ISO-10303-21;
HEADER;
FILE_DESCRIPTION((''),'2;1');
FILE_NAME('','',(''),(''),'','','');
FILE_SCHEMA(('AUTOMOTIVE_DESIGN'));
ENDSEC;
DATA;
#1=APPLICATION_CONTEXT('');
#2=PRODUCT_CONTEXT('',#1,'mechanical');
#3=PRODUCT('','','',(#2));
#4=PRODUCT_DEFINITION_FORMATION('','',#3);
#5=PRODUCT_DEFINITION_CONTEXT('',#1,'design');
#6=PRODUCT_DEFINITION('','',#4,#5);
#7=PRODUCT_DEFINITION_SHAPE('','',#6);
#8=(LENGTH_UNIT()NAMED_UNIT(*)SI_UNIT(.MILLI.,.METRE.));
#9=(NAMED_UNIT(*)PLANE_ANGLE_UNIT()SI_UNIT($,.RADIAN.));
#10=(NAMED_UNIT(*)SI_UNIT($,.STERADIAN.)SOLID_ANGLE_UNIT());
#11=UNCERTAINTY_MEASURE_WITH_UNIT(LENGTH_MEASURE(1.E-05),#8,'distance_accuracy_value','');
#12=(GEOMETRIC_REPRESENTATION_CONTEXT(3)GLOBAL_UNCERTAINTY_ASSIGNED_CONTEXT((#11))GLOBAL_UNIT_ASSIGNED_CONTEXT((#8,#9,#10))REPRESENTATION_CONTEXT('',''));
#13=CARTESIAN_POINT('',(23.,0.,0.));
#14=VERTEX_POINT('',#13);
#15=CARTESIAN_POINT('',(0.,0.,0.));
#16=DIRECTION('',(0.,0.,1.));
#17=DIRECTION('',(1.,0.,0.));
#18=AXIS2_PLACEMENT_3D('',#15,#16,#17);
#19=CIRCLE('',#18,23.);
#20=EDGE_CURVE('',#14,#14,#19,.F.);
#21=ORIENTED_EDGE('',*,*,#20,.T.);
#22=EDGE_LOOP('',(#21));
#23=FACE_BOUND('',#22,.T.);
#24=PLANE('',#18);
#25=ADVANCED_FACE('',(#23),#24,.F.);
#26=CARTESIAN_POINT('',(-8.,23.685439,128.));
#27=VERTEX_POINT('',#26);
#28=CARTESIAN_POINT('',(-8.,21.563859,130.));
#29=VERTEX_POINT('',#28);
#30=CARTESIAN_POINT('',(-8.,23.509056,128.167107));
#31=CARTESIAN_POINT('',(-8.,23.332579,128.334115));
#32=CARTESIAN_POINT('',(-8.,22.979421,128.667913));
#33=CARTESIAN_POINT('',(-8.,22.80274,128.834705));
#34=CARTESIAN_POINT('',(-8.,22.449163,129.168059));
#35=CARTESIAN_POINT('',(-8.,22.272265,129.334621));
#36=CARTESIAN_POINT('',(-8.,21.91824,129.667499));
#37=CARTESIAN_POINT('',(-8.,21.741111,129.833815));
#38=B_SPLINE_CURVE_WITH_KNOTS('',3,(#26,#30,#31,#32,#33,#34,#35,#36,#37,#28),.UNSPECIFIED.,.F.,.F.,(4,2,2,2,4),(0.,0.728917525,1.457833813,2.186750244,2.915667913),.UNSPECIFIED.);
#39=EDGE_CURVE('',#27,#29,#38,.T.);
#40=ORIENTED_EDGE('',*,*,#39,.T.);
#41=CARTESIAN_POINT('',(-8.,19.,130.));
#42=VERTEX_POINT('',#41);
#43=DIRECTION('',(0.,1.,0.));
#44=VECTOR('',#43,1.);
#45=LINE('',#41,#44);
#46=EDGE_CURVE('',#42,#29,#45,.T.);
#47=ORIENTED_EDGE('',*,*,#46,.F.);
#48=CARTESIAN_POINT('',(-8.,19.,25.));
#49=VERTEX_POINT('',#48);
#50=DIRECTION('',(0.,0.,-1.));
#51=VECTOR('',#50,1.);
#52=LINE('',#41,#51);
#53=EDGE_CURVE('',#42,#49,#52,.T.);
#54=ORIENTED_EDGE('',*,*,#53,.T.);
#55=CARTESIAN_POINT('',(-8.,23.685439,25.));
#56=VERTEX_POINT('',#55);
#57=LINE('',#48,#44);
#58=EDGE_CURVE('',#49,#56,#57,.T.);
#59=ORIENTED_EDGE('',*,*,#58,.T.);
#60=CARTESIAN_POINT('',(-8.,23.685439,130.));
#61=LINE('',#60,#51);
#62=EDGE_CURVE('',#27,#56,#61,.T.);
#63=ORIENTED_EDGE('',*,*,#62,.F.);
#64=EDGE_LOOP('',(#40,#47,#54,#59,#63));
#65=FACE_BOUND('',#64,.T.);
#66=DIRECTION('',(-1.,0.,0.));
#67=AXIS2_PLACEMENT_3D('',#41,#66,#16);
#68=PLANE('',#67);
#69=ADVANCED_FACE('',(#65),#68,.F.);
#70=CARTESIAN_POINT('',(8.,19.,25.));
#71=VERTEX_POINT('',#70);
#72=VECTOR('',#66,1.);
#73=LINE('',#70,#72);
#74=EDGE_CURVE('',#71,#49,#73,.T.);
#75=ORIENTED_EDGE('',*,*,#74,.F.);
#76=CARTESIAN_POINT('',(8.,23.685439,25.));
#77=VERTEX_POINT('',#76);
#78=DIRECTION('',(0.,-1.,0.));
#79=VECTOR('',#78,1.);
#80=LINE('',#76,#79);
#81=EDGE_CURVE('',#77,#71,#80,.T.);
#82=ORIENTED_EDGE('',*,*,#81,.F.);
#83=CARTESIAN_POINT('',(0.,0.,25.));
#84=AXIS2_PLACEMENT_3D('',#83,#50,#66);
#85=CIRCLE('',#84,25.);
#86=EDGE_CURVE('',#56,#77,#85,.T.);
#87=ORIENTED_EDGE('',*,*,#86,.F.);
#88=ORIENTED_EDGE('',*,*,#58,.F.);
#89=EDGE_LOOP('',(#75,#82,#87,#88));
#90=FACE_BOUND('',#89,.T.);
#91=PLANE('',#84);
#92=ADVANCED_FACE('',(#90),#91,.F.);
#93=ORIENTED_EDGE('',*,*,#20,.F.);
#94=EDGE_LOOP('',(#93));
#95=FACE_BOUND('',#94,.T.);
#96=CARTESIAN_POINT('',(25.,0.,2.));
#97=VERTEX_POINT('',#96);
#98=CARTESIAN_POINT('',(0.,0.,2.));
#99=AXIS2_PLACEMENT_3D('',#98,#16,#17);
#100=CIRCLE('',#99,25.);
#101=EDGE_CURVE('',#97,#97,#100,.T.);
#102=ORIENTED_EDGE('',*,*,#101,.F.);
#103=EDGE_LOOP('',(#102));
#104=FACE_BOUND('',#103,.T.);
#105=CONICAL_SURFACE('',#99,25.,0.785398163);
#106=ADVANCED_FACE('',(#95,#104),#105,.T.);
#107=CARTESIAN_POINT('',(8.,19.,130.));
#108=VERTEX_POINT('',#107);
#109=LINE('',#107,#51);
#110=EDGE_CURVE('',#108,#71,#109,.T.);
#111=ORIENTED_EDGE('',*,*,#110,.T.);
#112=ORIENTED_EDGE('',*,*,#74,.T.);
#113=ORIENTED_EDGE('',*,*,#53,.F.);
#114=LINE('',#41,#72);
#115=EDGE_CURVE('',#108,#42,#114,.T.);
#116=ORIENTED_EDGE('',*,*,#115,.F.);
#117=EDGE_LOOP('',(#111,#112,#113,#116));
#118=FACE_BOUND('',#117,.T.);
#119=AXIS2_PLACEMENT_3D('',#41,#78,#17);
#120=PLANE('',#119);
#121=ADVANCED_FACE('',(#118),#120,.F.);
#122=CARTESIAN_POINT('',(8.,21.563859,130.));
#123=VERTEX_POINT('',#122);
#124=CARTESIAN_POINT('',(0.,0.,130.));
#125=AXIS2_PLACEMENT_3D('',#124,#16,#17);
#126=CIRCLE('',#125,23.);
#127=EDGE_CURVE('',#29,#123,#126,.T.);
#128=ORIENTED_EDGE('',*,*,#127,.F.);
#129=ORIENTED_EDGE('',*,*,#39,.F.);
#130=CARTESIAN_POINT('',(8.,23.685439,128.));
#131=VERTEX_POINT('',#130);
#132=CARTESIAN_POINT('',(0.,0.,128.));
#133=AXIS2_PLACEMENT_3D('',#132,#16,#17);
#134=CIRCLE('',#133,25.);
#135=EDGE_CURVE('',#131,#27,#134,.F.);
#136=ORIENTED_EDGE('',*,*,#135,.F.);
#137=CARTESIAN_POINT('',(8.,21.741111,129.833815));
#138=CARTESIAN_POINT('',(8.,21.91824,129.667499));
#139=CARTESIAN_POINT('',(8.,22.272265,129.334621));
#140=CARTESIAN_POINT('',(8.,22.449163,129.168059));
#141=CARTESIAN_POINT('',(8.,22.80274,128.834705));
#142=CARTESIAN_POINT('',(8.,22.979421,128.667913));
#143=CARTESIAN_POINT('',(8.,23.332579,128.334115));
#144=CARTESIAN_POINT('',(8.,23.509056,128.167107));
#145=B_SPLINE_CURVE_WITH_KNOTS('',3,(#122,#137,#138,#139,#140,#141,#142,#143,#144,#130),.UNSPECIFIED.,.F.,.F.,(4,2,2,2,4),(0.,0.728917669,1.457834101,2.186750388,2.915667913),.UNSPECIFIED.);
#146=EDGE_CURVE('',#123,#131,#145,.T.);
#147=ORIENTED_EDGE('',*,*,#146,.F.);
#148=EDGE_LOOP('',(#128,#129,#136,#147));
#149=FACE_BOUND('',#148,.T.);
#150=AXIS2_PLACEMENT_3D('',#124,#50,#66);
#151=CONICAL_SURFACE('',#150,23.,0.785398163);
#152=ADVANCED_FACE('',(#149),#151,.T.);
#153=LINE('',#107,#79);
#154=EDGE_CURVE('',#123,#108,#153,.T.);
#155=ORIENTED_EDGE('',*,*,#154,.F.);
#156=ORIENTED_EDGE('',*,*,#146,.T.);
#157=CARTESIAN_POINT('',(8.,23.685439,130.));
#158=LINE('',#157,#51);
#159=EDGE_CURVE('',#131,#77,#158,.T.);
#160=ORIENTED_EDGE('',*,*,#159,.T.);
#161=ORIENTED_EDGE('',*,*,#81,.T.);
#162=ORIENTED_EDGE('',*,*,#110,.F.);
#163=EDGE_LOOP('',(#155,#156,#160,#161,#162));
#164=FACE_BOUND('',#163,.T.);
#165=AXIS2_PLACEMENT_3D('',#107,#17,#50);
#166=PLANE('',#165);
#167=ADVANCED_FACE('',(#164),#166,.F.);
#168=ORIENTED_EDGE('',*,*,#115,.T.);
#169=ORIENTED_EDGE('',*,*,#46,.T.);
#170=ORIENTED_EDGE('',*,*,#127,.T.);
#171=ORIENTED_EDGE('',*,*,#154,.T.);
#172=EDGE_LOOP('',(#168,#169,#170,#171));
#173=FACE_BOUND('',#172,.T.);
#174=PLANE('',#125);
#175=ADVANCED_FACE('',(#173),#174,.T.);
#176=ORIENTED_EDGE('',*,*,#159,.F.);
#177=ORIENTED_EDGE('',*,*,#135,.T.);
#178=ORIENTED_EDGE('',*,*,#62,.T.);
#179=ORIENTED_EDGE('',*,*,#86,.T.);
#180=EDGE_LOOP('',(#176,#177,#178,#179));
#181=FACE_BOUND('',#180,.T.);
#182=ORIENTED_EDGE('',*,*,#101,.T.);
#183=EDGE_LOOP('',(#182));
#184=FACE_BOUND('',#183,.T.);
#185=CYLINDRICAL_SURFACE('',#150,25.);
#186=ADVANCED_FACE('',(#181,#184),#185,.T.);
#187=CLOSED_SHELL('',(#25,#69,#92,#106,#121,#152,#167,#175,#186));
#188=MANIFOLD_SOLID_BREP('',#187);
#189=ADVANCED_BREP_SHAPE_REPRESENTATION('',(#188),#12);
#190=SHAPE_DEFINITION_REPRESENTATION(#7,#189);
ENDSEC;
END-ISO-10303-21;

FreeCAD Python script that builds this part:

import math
import FreeCAD as App
import Part
import Sketcher

V = App.Vector
Q = App.Units.Quantity


def edges_at(feature, points):
    """Names of the edges that pass closest to the given points."""
    edges = feature.Shape.Edges
    near = lambda p: min(range(len(edges)), key=lambda i: edges[i].distToShape(Part.Vertex(*p))[0])
    return sorted({f"Edge{near(p) + 1}" for p in points})

doc = App.newDocument("Part")
body = doc.addObject("PartDesign::Body", "Body")

sketch1 = body.newObject("Sketcher::SketchObject", "Sketch")
sketch1.AttachmentSupport = (doc.getObject("XY_Plane"), [""])
sketch1.MapMode = "FlatFace"
sketch1.addGeometry(Part.LineSegment(V(8, 19, 0), V(-8, 19, 0)), False)
sketch1.addGeometry(Part.LineSegment(V(-8, 19, 0), V(-8, 23.7, 0)), False)
sketch1.addGeometry(Part.ArcOfCircle(Part.Circle(V(0, 0, 0), V(0, 0, 1), 25), math.radians(109), math.radians(431)), False)
sketch1.addGeometry(Part.LineSegment(V(8, 23.7, 0), V(8, 19, 0)), False)
sketch1.addConstraint(Sketcher.Constraint("Coincident", 0, 2, 1, 1))
sketch1.addConstraint(Sketcher.Constraint("Coincident", 1, 2, 2, 1))
sketch1.addConstraint(Sketcher.Constraint("Coincident", 2, 2, 3, 1))
sketch1.addConstraint(Sketcher.Constraint("Coincident", 3, 2, 0, 1))
sketch1.addConstraint(Sketcher.Constraint("Horizontal", 0))
sketch1.addConstraint(Sketcher.Constraint("Vertical", 1))
sketch1.addConstraint(Sketcher.Constraint("Vertical", 3))
sketch1.addConstraint(Sketcher.Constraint("Coincident", 2, 3, -1, 1))
sketch1.addConstraint(Sketcher.Constraint("Horizontal", 1, 2, 2, 2))
sketch1.addConstraint(Sketcher.Constraint("Radius", 2, Q("25 mm")))
sketch1.addConstraint(Sketcher.Constraint("DistanceX", 0, 2, 0, 1, Q("16 mm")))
sketch1.addConstraint(Sketcher.Constraint("DistanceY", -1, 1, 0, 2, Q("19 mm")))
pad1 = body.newObject("PartDesign::Pad", "Pad")
pad1.Profile = sketch1
pad1.Length = 130

sketch2 = body.newObject("Sketcher::SketchObject", "Sketch001")
sketch2.AttachmentSupport = (doc.getObject("XY_Plane"), [""])
sketch2.MapMode = "FlatFace"
sketch2.addGeometry(Part.LineSegment(V(8, 23.685439, 0), V(8, 19, 0)), False)
sketch2.addGeometry(Part.LineSegment(V(8, 19, 0), V(-8, 19, 0)), False)
sketch2.addGeometry(Part.LineSegment(V(-8, 19, 0), V(-8, 23.685439, 0)), False)
sketch2.addGeometry(Part.ArcOfCircle(Part.Circle(V(0, 0, 0), V(0, 0, 1), 25), math.radians(71.337075), math.radians(108.662925)), False)
sketch2.addConstraint(Sketcher.Constraint("Coincident", 0, 2, 1, 1))
sketch2.addConstraint(Sketcher.Constraint("Coincident", 1, 2, 2, 1))
sketch2.addConstraint(Sketcher.Constraint("Coincident", 2, 2, 3, 2))
sketch2.addConstraint(Sketcher.Constraint("Coincident", 3, 1, 0, 1))
sketch2.addConstraint(Sketcher.Constraint("Vertical", 0))
sketch2.addConstraint(Sketcher.Constraint("Horizontal", 1))
sketch2.addConstraint(Sketcher.Constraint("Vertical", 2))
sketch2.addConstraint(Sketcher.Constraint("Coincident", 3, 3, -1, 1))
sketch2.addConstraint(Sketcher.Constraint("Horizontal", 2, 2, 3, 1))
sketch2.addConstraint(Sketcher.Constraint("Radius", 3, Q("25 mm")))
sketch2.addConstraint(Sketcher.Constraint("DistanceX", 1, 2, 1, 1, Q("16 mm")))
sketch2.addConstraint(Sketcher.Constraint("DistanceY", -1, 1, 0, 2, Q("19 mm")))
pad2 = body.newObject("PartDesign::Pad", "Pad001")
pad2.Profile = sketch2
pad2.Length = 25
doc.recompute()

chamfer = body.newObject("PartDesign::Chamfer", "Chamfer")
chamfer.Base = (pad2, edges_at(pad2, [(0, -25, 130), (0, -25, 0)]))
chamfer.Size = 2

doc.recompute()
